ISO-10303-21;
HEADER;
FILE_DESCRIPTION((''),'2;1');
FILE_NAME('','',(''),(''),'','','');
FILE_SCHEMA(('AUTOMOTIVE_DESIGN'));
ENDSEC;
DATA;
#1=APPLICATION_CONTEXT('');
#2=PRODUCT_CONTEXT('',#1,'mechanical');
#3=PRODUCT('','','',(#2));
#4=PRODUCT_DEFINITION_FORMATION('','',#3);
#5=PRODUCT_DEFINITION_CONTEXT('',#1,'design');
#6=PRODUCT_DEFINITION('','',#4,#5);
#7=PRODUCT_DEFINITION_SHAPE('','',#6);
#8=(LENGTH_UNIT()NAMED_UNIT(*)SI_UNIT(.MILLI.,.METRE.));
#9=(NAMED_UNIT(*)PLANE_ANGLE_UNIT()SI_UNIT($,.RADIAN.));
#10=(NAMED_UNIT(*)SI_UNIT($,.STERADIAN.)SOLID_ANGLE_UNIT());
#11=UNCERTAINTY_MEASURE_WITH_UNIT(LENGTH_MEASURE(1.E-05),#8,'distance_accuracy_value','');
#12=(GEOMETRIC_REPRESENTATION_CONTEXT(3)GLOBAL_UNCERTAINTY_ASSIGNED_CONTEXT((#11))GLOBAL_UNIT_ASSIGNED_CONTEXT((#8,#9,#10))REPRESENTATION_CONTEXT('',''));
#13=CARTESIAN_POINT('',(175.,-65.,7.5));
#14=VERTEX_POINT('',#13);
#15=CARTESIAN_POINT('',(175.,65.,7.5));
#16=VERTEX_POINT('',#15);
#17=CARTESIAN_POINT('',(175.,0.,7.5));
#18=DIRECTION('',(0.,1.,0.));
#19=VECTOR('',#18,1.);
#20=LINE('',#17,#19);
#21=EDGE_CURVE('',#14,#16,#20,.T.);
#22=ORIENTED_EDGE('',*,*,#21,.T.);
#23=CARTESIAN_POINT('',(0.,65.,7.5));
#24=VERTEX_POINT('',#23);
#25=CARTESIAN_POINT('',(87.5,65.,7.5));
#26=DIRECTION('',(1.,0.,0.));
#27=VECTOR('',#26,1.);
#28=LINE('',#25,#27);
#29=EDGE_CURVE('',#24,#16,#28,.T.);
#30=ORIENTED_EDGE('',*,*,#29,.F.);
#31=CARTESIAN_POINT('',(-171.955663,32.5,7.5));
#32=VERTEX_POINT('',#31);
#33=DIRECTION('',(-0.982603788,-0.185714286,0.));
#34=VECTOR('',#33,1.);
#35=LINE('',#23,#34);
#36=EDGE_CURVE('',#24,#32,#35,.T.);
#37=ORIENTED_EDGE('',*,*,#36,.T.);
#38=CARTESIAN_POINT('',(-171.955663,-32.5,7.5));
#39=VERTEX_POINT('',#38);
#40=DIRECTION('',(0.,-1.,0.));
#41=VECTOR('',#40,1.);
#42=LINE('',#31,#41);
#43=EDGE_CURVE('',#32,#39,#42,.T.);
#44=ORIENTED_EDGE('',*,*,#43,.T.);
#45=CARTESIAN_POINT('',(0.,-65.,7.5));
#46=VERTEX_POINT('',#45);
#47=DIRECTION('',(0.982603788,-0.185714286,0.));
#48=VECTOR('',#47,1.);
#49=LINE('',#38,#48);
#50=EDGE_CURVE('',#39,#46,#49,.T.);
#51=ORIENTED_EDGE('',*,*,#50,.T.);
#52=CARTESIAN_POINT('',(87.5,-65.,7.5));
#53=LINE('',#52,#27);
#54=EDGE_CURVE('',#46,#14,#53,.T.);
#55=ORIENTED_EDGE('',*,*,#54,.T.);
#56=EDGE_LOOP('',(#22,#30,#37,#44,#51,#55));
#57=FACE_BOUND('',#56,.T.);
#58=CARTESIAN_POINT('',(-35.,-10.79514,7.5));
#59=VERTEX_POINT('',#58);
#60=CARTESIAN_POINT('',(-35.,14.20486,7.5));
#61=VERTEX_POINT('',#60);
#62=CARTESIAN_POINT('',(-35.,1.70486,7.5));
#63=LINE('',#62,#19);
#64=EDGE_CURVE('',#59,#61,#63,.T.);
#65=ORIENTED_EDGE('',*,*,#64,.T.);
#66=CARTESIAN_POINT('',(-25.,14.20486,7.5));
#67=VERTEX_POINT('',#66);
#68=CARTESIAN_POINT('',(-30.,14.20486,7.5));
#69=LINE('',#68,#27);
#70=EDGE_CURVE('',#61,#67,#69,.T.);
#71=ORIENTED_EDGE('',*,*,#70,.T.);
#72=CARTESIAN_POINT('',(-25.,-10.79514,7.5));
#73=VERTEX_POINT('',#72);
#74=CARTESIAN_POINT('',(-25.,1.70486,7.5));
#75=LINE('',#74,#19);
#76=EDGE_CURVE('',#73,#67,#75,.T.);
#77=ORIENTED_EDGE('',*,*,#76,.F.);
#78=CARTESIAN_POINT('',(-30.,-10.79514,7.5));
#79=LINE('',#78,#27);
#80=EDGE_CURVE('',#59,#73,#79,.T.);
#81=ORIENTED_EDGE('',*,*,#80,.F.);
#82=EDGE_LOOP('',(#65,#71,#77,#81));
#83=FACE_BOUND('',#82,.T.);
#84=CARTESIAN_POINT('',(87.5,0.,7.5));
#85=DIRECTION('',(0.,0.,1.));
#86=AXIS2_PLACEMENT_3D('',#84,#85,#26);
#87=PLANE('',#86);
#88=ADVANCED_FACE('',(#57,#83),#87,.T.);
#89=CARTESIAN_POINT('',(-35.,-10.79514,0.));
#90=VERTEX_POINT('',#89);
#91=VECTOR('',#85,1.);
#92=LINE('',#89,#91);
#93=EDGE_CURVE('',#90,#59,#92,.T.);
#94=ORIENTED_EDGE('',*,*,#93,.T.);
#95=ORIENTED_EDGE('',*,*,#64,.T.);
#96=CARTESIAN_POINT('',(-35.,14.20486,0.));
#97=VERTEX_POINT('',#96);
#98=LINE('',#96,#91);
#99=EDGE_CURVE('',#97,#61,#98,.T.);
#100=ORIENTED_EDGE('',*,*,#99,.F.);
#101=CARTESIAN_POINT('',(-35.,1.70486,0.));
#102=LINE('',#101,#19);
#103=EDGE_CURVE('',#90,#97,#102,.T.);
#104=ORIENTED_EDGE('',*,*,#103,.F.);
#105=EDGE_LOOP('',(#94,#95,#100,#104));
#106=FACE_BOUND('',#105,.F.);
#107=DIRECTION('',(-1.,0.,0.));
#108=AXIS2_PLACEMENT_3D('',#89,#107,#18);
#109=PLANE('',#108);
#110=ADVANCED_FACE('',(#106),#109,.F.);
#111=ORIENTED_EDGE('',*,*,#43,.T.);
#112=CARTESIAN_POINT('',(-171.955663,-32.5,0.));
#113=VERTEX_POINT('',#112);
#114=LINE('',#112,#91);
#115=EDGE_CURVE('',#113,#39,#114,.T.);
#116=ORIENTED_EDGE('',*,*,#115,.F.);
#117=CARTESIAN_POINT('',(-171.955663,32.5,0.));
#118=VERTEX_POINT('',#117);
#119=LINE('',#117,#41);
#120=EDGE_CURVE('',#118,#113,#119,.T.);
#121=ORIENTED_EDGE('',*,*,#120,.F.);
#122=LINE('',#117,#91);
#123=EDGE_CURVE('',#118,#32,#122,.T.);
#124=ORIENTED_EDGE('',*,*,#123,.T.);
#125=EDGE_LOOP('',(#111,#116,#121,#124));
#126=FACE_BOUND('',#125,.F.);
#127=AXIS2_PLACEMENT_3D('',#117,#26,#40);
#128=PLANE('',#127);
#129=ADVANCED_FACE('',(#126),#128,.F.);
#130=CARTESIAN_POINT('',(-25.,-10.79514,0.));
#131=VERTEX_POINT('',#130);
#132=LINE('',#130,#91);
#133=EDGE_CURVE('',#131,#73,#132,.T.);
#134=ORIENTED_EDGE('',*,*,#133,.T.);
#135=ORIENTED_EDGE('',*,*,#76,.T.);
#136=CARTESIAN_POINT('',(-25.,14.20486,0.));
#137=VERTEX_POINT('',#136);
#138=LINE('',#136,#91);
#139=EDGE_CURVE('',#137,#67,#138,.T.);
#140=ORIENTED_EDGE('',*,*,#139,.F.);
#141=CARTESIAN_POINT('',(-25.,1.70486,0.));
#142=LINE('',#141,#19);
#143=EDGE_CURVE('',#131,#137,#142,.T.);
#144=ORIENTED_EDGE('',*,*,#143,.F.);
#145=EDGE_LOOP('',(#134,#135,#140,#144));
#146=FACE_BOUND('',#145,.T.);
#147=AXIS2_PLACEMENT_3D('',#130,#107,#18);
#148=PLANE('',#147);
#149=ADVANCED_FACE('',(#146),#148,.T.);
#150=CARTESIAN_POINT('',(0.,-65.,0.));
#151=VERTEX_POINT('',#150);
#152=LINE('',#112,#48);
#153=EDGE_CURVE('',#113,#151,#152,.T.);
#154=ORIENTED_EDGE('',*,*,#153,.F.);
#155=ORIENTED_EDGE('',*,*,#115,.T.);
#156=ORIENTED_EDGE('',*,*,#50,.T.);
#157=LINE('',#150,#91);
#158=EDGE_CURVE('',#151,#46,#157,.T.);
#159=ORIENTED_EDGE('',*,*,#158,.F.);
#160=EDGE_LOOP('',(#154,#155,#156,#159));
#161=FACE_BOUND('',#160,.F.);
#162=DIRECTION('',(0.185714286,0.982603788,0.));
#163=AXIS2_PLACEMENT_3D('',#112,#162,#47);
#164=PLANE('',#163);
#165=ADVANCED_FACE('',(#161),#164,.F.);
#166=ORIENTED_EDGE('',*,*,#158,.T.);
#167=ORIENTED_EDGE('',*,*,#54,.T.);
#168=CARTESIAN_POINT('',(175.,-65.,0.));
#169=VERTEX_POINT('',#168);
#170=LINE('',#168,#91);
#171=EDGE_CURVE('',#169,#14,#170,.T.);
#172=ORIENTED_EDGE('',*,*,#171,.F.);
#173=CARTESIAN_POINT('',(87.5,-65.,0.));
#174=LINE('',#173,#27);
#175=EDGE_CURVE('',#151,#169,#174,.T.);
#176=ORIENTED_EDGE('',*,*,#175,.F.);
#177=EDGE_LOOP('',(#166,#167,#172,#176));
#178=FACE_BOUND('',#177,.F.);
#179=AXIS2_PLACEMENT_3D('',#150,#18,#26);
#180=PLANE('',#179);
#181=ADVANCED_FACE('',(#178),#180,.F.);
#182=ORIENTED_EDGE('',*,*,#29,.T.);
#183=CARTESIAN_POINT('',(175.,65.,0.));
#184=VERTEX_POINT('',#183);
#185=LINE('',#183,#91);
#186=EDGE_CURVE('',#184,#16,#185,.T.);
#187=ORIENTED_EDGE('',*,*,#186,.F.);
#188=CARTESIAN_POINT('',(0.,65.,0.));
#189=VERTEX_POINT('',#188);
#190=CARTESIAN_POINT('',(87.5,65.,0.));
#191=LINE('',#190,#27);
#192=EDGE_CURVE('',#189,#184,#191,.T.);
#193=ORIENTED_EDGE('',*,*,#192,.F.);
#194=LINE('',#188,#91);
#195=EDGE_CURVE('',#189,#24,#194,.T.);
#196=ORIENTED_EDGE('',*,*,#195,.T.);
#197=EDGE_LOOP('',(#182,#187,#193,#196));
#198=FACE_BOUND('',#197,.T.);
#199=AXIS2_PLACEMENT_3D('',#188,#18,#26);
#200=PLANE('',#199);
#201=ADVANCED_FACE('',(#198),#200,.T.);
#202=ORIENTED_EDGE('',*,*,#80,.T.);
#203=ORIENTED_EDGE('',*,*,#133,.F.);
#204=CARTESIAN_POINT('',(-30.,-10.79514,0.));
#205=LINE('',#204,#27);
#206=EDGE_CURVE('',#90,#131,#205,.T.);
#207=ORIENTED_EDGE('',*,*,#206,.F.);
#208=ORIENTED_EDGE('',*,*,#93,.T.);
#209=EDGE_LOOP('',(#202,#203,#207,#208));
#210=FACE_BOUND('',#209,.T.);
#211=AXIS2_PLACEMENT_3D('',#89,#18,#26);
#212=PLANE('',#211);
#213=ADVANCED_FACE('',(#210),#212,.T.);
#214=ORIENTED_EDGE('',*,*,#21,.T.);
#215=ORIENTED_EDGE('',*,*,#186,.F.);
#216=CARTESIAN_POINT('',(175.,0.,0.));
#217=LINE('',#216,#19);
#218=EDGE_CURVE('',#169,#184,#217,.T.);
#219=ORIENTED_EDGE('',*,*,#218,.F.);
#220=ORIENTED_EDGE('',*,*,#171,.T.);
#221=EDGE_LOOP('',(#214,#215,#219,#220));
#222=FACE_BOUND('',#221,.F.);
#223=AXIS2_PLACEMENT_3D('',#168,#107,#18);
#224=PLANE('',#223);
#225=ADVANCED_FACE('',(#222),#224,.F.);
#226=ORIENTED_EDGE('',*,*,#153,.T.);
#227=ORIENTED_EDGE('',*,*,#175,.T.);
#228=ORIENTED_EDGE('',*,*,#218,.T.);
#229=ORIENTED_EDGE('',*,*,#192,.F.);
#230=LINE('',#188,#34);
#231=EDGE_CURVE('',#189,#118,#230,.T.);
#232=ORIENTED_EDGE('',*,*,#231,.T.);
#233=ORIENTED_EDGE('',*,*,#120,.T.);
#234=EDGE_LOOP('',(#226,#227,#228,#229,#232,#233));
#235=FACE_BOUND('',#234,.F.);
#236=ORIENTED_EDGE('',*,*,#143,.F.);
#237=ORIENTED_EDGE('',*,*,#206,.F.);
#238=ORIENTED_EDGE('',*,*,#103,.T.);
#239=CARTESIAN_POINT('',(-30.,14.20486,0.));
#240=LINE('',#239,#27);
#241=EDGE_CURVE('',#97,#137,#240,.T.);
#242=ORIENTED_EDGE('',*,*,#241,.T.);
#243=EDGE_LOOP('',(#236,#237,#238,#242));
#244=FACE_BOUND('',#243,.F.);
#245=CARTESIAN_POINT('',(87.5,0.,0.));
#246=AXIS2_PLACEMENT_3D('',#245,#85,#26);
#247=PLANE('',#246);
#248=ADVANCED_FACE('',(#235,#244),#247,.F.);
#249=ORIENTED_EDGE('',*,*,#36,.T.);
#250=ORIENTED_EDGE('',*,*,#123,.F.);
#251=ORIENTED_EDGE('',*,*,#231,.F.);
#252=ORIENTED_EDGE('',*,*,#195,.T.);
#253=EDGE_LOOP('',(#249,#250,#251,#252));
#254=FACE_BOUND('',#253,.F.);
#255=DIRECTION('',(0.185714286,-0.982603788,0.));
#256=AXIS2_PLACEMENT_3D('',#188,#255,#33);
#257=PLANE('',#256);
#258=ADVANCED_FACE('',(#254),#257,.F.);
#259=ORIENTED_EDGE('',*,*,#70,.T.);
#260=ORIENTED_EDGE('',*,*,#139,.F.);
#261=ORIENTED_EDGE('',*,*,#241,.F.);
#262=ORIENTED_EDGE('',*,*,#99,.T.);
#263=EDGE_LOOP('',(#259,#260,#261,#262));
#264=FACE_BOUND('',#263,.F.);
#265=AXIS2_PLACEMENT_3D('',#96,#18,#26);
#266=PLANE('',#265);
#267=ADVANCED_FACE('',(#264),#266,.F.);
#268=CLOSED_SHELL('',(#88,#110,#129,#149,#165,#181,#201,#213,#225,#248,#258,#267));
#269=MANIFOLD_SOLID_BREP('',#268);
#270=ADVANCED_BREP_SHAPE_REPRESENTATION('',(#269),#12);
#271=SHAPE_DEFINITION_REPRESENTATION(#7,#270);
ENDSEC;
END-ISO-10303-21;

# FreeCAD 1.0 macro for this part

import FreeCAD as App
import Part
import Sketcher
from FreeCAD import Vector
Q = App.Units.Quantity

doc = App.newDocument("Part")
body = doc.addObject("PartDesign::Body", "Body")

sketch1 = body.newObject("Sketcher::SketchObject", "Sketch")
sketch1.AttachmentSupport = (doc.getObject("XY_Plane"), [""])
sketch1.MapMode = "FlatFace"
sketch1.addGeometry([
    Part.LineSegment(Vector(0, -65, 0), Vector(175, -65, 0)),
    Part.LineSegment(Vector(175, -65, 0), Vector(175, 65, 0)),
    Part.LineSegment(Vector(175, 65, 0), Vector(0, 65, 0)),
    Part.LineSegment(Vector(0, 65, 0), Vector(-172, 32, 0)),
    Part.LineSegment(Vector(-172, 32, 0), Vector(-172, -32, 0)),
    Part.LineSegment(Vector(-172, -32, 0), Vector(0, -65, 0)),
], False)
sketch1.addConstraint([
    Sketcher.Constraint("Coincident", 0, 2, 1, 1),
    Sketcher.Constraint("Coincident", 1, 2, 2, 1),
    Sketcher.Constraint("Coincident", 2, 2, 3, 1),
    Sketcher.Constraint("Coincident", 3, 2, 4, 1),
    Sketcher.Constraint("Coincident", 4, 2, 5, 1),
    Sketcher.Constraint("Coincident", 5, 2, 0, 1),
    Sketcher.Constraint("Horizontal", 0),
    Sketcher.Constraint("Vertical", 1),
    Sketcher.Constraint("Horizontal", 2),
    Sketcher.Constraint("Vertical", 4),
    Sketcher.Constraint("Symmetric", 2, 2, 5, 2, -1, 1),
    Sketcher.Constraint("PointOnObject", 2, 2, -2),
    Sketcher.Constraint("Equal", 3, 5),
    Sketcher.Constraint("DistanceX", 0, 1, 0, 2, Q("175 mm")),
    Sketcher.Constraint("DistanceY", 1, 1, 1, 2, Q("130 mm")),
    Sketcher.Constraint("DistanceY", 4, 2, 4, 1, Q("65 mm")),
    Sketcher.Constraint("Distance", 3, Q("175 mm")),
])
pad1 = body.newObject("PartDesign::Pad", "Pad")
pad1.Profile = sketch1
pad1.Length = 7.5

sketch2 = body.newObject("Sketcher::SketchObject", "Sketch001")
sketch2.AttachmentSupport = (doc.getObject("XY_Plane"), [""])
sketch2.MapMode = "FlatFace"
sketch2.addGeometry([
    Part.LineSegment(Vector(-35, 14, 0), Vector(-35, -11, 0)),
    Part.LineSegment(Vector(-35, -11, 0), Vector(-25, -11, 0)),
    Part.LineSegment(Vector(-25, -11, 0), Vector(-25, 14, 0)),
    Part.LineSegment(Vector(-25, 14, 0), Vector(-35, 14, 0)),
], False)
sketch2.addConstraint([
    Sketcher.Constraint("Coincident", 0, 2, 1, 1),
    Sketcher.Constraint("Coincident", 1, 2, 2, 1),
    Sketcher.Constraint("Coincident", 2, 2, 3, 1),
    Sketcher.Constraint("Coincident", 3, 2, 0, 1),
    Sketcher.Constraint("Vertical", 0),
    Sketcher.Constraint("Horizontal", 1),
    Sketcher.Constraint("Vertical", 2),
    Sketcher.Constraint("Horizontal", 3),
    Sketcher.Constraint("DistanceX", 1, 1, 1, 2, Q("10 mm")),
    Sketcher.Constraint("DistanceY", 0, 2, 0, 1, Q("25 mm")),
    Sketcher.Constraint("DistanceX", 0, 2, -1, 1, Q("35 mm")),
    Sketcher.Constraint("DistanceY", 0, 2, -1, 1, Q("10.79514 mm")),
])
pocket1 = body.newObject("PartDesign::Pocket", "Pocket")
pocket1.Profile = sketch2
pocket1.Length = 7.5
pocket1.Reversed = True

doc.recompute()
